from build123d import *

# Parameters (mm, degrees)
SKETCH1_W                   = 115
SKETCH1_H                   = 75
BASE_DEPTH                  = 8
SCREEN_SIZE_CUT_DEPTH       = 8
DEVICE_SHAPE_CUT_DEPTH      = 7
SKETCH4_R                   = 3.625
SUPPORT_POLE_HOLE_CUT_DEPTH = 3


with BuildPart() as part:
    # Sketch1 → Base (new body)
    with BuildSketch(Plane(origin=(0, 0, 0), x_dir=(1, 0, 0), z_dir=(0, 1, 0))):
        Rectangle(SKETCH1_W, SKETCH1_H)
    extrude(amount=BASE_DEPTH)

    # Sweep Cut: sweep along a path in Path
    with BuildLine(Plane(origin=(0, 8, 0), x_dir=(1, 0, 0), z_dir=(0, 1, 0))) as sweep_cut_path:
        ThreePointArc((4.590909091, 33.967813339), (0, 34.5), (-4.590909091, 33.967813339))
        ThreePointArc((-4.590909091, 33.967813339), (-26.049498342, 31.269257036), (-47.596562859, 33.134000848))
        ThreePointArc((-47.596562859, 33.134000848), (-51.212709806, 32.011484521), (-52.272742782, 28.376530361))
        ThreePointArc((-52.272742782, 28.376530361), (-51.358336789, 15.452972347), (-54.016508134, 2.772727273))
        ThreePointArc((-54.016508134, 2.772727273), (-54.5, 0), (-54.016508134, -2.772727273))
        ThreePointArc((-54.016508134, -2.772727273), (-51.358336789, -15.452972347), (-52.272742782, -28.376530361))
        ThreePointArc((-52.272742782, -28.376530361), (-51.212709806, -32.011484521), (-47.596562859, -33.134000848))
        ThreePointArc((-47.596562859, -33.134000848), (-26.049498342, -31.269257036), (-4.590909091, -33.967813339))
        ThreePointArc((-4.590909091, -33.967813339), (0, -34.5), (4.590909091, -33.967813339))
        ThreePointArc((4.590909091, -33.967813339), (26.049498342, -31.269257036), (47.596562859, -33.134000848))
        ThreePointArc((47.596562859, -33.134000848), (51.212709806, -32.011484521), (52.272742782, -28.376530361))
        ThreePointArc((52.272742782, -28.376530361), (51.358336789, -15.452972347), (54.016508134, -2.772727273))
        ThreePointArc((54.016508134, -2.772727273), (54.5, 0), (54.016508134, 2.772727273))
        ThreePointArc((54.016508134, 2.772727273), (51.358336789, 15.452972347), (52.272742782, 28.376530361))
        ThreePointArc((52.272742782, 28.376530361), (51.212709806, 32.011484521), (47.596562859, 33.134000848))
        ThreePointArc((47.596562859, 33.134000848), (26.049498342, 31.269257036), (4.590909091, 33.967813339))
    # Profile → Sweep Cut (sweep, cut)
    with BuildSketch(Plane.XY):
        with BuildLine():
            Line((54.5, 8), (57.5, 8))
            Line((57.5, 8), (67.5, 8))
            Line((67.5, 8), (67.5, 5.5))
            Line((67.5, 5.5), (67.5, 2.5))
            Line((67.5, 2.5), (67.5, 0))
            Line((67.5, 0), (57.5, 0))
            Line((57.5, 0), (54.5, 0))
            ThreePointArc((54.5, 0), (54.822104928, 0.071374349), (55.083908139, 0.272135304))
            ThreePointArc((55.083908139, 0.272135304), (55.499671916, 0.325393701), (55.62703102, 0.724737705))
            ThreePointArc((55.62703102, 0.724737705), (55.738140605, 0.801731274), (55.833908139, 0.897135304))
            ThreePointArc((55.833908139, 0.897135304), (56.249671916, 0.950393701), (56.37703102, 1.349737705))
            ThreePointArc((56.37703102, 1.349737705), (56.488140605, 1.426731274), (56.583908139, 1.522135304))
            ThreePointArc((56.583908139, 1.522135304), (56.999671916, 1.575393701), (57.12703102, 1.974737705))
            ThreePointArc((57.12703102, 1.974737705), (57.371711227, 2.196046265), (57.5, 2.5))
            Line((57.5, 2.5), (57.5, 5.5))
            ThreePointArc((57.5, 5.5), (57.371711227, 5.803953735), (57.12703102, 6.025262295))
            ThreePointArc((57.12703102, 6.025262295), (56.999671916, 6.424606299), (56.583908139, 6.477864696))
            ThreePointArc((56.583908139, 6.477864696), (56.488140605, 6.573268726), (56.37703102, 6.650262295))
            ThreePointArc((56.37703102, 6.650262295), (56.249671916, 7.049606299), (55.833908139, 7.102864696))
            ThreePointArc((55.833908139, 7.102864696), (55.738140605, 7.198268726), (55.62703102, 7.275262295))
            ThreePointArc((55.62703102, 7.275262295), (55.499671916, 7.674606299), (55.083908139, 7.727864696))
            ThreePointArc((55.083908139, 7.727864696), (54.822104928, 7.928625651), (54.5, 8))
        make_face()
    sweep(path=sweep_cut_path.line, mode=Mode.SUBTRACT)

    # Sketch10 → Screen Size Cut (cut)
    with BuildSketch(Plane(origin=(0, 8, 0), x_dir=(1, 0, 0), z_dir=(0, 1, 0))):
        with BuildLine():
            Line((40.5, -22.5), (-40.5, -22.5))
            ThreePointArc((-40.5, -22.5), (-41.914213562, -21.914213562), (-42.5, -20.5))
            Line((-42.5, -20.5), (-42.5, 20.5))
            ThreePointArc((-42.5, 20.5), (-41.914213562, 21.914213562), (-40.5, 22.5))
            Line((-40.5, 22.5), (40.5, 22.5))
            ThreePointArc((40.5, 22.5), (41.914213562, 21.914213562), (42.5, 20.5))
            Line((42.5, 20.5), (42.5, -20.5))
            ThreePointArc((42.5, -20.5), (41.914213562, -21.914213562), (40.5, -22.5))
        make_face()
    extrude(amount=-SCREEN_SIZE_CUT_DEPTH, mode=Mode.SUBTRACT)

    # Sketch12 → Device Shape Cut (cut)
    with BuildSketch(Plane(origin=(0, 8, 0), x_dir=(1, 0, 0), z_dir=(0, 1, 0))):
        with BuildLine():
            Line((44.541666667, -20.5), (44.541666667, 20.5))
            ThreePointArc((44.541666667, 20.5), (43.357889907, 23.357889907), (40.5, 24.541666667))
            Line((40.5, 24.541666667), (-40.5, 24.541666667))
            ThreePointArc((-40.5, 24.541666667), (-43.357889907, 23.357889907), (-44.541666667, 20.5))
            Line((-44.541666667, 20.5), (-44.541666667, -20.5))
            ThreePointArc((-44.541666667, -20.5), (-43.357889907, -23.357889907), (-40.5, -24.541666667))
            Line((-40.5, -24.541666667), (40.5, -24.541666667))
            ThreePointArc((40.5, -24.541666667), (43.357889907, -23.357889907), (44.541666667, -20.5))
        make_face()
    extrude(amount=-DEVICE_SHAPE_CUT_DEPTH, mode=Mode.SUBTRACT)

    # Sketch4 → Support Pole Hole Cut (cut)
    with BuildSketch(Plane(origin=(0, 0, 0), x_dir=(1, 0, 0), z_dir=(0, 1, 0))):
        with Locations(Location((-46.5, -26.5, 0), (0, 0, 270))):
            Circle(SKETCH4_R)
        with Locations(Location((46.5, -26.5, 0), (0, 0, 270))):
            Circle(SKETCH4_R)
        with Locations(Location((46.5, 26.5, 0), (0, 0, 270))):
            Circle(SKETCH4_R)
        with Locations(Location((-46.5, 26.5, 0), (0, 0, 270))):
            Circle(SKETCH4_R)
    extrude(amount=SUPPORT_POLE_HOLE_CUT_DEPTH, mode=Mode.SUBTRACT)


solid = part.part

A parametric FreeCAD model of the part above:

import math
import FreeCAD as App
import Part
import Sketcher
from FreeCAD import Vector

doc = App.newDocument("Part")
body = doc.addObject("PartDesign::Body", "Body")

sketch1 = doc.addObject("Sketcher::SketchObject", "Sketch")
body.addObject(sketch1)
sketch1.AttachmentSupport = (doc.XZ_Plane, [""])
sketch1.MapMode = "FlatFace"
sketch1.addGeometry([
    Part.LineSegment(Vector(-58, -38, 0), Vector(-58, 38, 0)),
    Part.LineSegment(Vector(-58, 38, 0), Vector(58, 38, 0)),
    Part.LineSegment(Vector(58, 38, 0), Vector(58, -38, 0)),
    Part.LineSegment(Vector(58, -38, 0), Vector(-58, -38, 0)),
], False)
sketch1.addConstraint([
    Sketcher.Constraint("Coincident", 0, 2, 1, 1),
    Sketcher.Constraint("Coincident", 1, 2, 2, 1),
    Sketcher.Constraint("Coincident", 2, 2, 3, 1),
    Sketcher.Constraint("Coincident", 3, 2, 0, 1),
    Sketcher.Constraint("Vertical", 0),
    Sketcher.Constraint("Horizontal", 1),
    Sketcher.Constraint("Vertical", 2),
    Sketcher.Constraint("Horizontal", 3),
    Sketcher.Constraint("Symmetric", 0, 2, 2, 2, -1, 1),
    Sketcher.Constraint("DistanceX", 1, 1, 1, 2, 115.0),
    Sketcher.Constraint("DistanceY", 0, 1, 0, 2, 75.0),
])
pad1 = doc.addObject("PartDesign::Pad", "Pad")
body.addObject(pad1)
pad1.Profile = sketch1
pad1.Length = 8
pad1.Reversed = True

sketch2 = doc.addObject("Sketcher::SketchObject", "Sketch001")
body.addObject(sketch2)
sketch2.AttachmentSupport = (doc.XY_Plane, [""])
sketch2.MapMode = "FlatFace"
sketch2.addGeometry([
    Part.LineSegment(Vector(67.5, 8, 0), Vector(54.5, 8, 0)),
    Part.ArcOfCircle(Part.Circle(Vector(54.5, 7.24, 0), Vector(0, 0, 1), 0.76), math.radians(40), math.radians(90)),
    Part.ArcOfCircle(Part.Circle(Vector(55.25, 7.38, 0), Vector(0, 0, 1), 0.39), math.radians(-15), math.radians(115)),
    Part.ArcOfCircle(Part.Circle(Vector(55.25, 6.61, 0), Vector(0, 0, 1), 0.76), math.radians(40), math.radians(60)),
    Part.ArcOfCircle(Part.Circle(Vector(56, 6.75, 0), Vector(0, 0, 1), 0.39), math.radians(-15), math.radians(115)),
    Part.ArcOfCircle(Part.Circle(Vector(56, 5.99, 0), Vector(0, 0, 1), 0.76), math.radians(40), math.radians(60)),
    Part.ArcOfCircle(Part.Circle(Vector(56.75, 6.12, 0), Vector(0, 0, 1), 0.39), math.radians(-15), math.radians(115)),
    Part.ArcOfCircle(Part.Circle(Vector(56.75, 5.36, 0), Vector(0, 0, 1), 0.76), math.radians(10), math.radians(60)),
    Part.LineSegment(Vector(57.5, 5.5, 0), Vector(57.5, 2.5, 0)),
    Part.ArcOfCircle(Part.Circle(Vector(56.75, 2.64, 0), Vector(0, 0, 1), 0.76), math.radians(-60), math.radians(-10)),
    Part.ArcOfCircle(Part.Circle(Vector(56.75, 1.88, 0), Vector(0, 0, 1), 0.39), math.radians(-115), math.radians(15)),
    Part.ArcOfCircle(Part.Circle(Vector(56, 2.01, 0), Vector(0, 0, 1), 0.76), math.radians(-60), math.radians(-40)),
    Part.ArcOfCircle(Part.Circle(Vector(56, 1.25, 0), Vector(0, 0, 1), 0.39), math.radians(-115), math.radians(15)),
    Part.ArcOfCircle(Part.Circle(Vector(55.25, 1.39, 0), Vector(0, 0, 1), 0.76), math.radians(-60), math.radians(-40)),
    Part.ArcOfCircle(Part.Circle(Vector(55.25, 0.62, 0), Vector(0, 0, 1), 0.39), math.radians(-115), math.radians(15)),
    Part.ArcOfCircle(Part.Circle(Vector(54.5, 0.76, 0), Vector(0, 0, 1), 0.76), math.radians(-90), math.radians(-40)),
    Part.LineSegment(Vector(54.5, 0, 0), Vector(67.5, 0, 0)),
    Part.LineSegment(Vector(67.5, 0, 0), Vector(67.5, 8, 0)),
], False)
sketch2.addConstraint([
    Sketcher.Constraint("Tangent", 0, 2, 1, 2),
    Sketcher.Constraint("Coincident", 1, 1, 2, 2),
    Sketcher.Constraint("Coincident", 2, 1, 3, 2),
    Sketcher.Constraint("Coincident", 3, 1, 4, 2),
    Sketcher.Constraint("Coincident", 4, 1, 5, 2),
    Sketcher.Constraint("Coincident", 5, 1, 6, 2),
    Sketcher.Constraint("Coincident", 6, 1, 7, 2),
    Sketcher.Constraint("Coincident", 7, 1, 8, 1),
    Sketcher.Constraint("Coincident", 8, 2, 9, 2),
    Sketcher.Constraint("Coincident", 9, 1, 10, 2),
    Sketcher.Constraint("Coincident", 10, 1, 11, 2),
    Sketcher.Constraint("Coincident", 11, 1, 12, 2),
    Sketcher.Constraint("Coincident", 12, 1, 13, 2),
    Sketcher.Constraint("Coincident", 13, 1, 14, 2),
    Sketcher.Constraint("Coincident", 14, 1, 15, 2),
    Sketcher.Constraint("Tangent", 15, 1, 16, 1),
    Sketcher.Constraint("Coincident", 16, 2, 17, 1),
    Sketcher.Constraint("Coincident", 17, 2, 0, 1),
    Sketcher.Constraint("Horizontal", 0),
    Sketcher.Constraint("Vertical", 8),
    Sketcher.Constraint("Horizontal", 16),
    Sketcher.Constraint("Vertical", 17),
    Sketcher.Constraint("Equal", 1, 3),
    Sketcher.Constraint("Equal", 2, 4),
    Sketcher.Constraint("Equal", 3, 5),
    Sketcher.Constraint("Equal", 4, 6),
    Sketcher.Constraint("Equal", 5, 7),
    Sketcher.Constraint("Equal", 7, 9),
    Sketcher.Constraint("Equal", 6, 10),
    Sketcher.Constraint("Equal", 9, 11),
    Sketcher.Constraint("Equal", 10, 12),
    Sketcher.Constraint("Equal", 11, 13),
    Sketcher.Constraint("Equal", 12, 14),
    Sketcher.Constraint("Equal", 13, 15),
    Sketcher.Constraint("PointOnObject", 15, 1, -1),
    Sketcher.Constraint("Vertical", 2, 3, 3, 3),
    Sketcher.Constraint("Vertical", 4, 3, 5, 3),
    Sketcher.Constraint("Vertical", 6, 3, 7, 3),
    Sketcher.Constraint("Vertical", 7, 3, 9, 3),
    Sketcher.Constraint("Vertical", 9, 3, 10, 3),
    Sketcher.Constraint("Vertical", 5, 3, 11, 3),
    Sketcher.Constraint("Vertical", 11, 3, 12, 3),
    Sketcher.Constraint("Vertical", 3, 3, 13, 3),
    Sketcher.Constraint("Vertical", 13, 3, 14, 3),
    Sketcher.Constraint("Vertical", 1, 3, 15, 3),
    Sketcher.Constraint("Vertical", 6, 1, 9, 1),
    Sketcher.Constraint("Vertical", 5, 1, 10, 1),
    Sketcher.Constraint("Vertical", 4, 1, 11, 1),
    Sketcher.Constraint("Vertical", 3, 1, 12, 1),
    Sketcher.Constraint("Vertical", 2, 1, 13, 1),
    Sketcher.Constraint("Vertical", 1, 1, 14, 1),
    Sketcher.Constraint("DistanceX", 0, 2, 0, 1, 13.0),
    Sketcher.Constraint("DistanceY", 8, 2, 8, 1, 3.0),
    Sketcher.Constraint("DistanceY", 17, 1, 17, 2, 8.0),
    Sketcher.Constraint("Radius", 2, 0.39),
    Sketcher.Constraint("DistanceX", -1, 1, 4, 3, 56.0),
    Sketcher.Constraint("DistanceX", 8, 2, 16, 2, 10.0),
    Sketcher.Constraint("DistanceX", -1, 1, 1, 3, 54.5),
    Sketcher.Constraint("Radius", 1, 0.7625),
    Sketcher.Constraint("DistanceX", 3, 3, 6, 3, 1.5),
    Sketcher.Constraint("DistanceX", -1, 1, 2, 3, 55.25),
    Sketcher.Constraint("DistanceY", -1, 1, 4, 3, 6.75),
    Sketcher.Constraint("DistanceY", 5, 3, 1, 3, 1.25),
    Sketcher.Constraint("DistanceY", 6, 3, 2, 3, 1.25),
    Sketcher.Constraint("DistanceY", 7, 3, 3, 3, 1.25),
    Sketcher.Constraint("DistanceY", 10, 3, 6, 3, 4.25),
])

sketch3 = doc.addObject("Sketcher::SketchObject", "Sketch002")
body.addObject(sketch3)
sketch3.AttachmentSupport = (doc.XZ_Plane, [""])
sketch3.MapMode = "FlatFace"
sketch3.AttachmentOffset = App.Placement(Vector(0, 0, -8), App.Rotation())
sketch3.addGeometry([
    Part.ArcOfCircle(Part.Circle(Vector(0, -14.4, 0), Vector(0, 0, 1), 20.1), math.radians(-103), math.radians(-77)),
    Part.ArcOfCircle(Part.Circle(Vector(-28, -133.7, 0), Vector(0, 0, 1), 102.5), math.radians(77), math.radians(101)),
    Part.ArcOfCircle(Part.Circle(Vector(-48.4, -29.2, 0), Vector(0, 0, 1), 4), math.radians(168), math.radians(281)),
    Part.ArcOfCircle(Part.Circle(Vector(-98.1, -18.6, 0), Vector(0, 0, 1), 46.9), math.radians(-12), math.radians(20)),
    Part.ArcOfCircle(Part.Circle(Vector(-46.3, 0, 0), Vector(0, 0, 1), 8.2), math.radians(160), math.radians(200)),
    Part.ArcOfCircle(Part.Circle(Vector(-98.1, 18.6, 0), Vector(0, 0, 1), 46.9), math.radians(-20), math.radians(12)),
    Part.ArcOfCircle(Part.Circle(Vector(-48.4, 29.2, 0), Vector(0, 0, 1), 4), math.radians(79), math.radians(192)),
    Part.ArcOfCircle(Part.Circle(Vector(-28, 133.7, 0), Vector(0, 0, 1), 102.5), math.radians(-101), math.radians(-77)),
    Part.ArcOfCircle(Part.Circle(Vector(0, 14.4, 0), Vector(0, 0, 1), 20.1), math.radians(77), math.radians(103)),
    Part.ArcOfCircle(Part.Circle(Vector(28, 133.7, 0), Vector(0, 0, 1), 102.5), math.radians(-103), math.radians(-79)),
    Part.ArcOfCircle(Part.Circle(Vector(48.4, 29.2, 0), Vector(0, 0, 1), 4), math.radians(-12), math.radians(101)),
    Part.ArcOfCircle(Part.Circle(Vector(98.1, 18.6, 0), Vector(0, 0, 1), 46.9), math.radians(168), math.radians(200)),
    Part.ArcOfCircle(Part.Circle(Vector(46.3, 0, 0), Vector(0, 0, 1), 8.2), math.radians(-20), math.radians(20)),
    Part.ArcOfCircle(Part.Circle(Vector(98.1, -18.6, 0), Vector(0, 0, 1), 46.9), math.radians(160), math.radians(192)),
    Part.ArcOfCircle(Part.Circle(Vector(48.4, -29.2, 0), Vector(0, 0, 1), 4), math.radians(-101), math.radians(12)),
    Part.ArcOfCircle(Part.Circle(Vector(28, -133.7, 0), Vector(0, 0, 1), 102.5), math.radians(79), math.radians(103)),
], False)
sketch3.addConstraint([
    Sketcher.Constraint("Tangent", 0, 1, 1, 1),
    Sketcher.Constraint("Tangent", 1, 2, 2, 2),
    Sketcher.Constraint("Tangent", 2, 1, 3, 1),
    Sketcher.Constraint("Tangent", 3, 2, 4, 2),
    Sketcher.Constraint("Tangent", 4, 1, 5, 1),
    Sketcher.Constraint("Tangent", 5, 2, 6, 2),
    Sketcher.Constraint("Tangent", 6, 1, 7, 1),
    Sketcher.Constraint("Tangent", 7, 2, 8, 2),
    Sketcher.Constraint("Tangent", 8, 1, 9, 1),
    Sketcher.Constraint("Tangent", 9, 2, 10, 2),
    Sketcher.Constraint("Tangent", 10, 1, 11, 1),
    Sketcher.Constraint("Tangent", 11, 2, 12, 2),
    Sketcher.Constraint("Tangent", 12, 1, 13, 1),
    Sketcher.Constraint("Tangent", 13, 2, 14, 2),
    Sketcher.Constraint("Tangent", 14, 1, 15, 1),
    Sketcher.Constraint("Tangent", 15, 2, 0, 2),
    Sketcher.Constraint("Equal", 3, 5),
    Sketcher.Constraint("Equal", 2, 6),
    Sketcher.Constraint("Equal", 1, 7),
    Sketcher.Constraint("Equal", 0, 8),
    Sketcher.Constraint("Equal", 7, 9),
    Sketcher.Constraint("Equal", 6, 10),
    Sketcher.Constraint("Equal", 5, 11),
    Sketcher.Constraint("Equal", 4, 12),
    Sketcher.Constraint("Equal", 11, 13),
    Sketcher.Constraint("Equal", 10, 14),
    Sketcher.Constraint("Equal", 9, 15),
    Sketcher.Constraint("Symmetric", 0, 3, 8, 3, -1, 1),
    Sketcher.Constraint("Symmetric", 2, 3, 10, 3, -1, 1),
    Sketcher.Constraint("Symmetric", 4, 3, 12, 3, -1, 1),
    Sketcher.Constraint("Symmetric", 6, 3, 14, 3, -1, 1),
    Sketcher.Constraint("Symmetric", 7, 3, 9, 3, -2),
    Sketcher.Constraint("Symmetric", 5, 3, 11, 3, -2),
    Sketcher.Constraint("Radius", 2, 4.0),
    Sketcher.Constraint("Radius", 4, 8.192259),
    Sketcher.Constraint("DistanceY", 1, 2, -1, 1, 33.134001),
    Sketcher.Constraint("Radius", 0, 20.067836),
    Sketcher.Constraint("Radius", 1, 102.484026),
    Sketcher.Constraint("Radius", 3, 46.875557),
    Sketcher.Constraint("DistanceX", 2, 1, 4, 3, 5.965002),
    Sketcher.Constraint("DistanceY", 0, 3, 6, 3, 43.639699),
    Sketcher.Constraint("DistanceX", 4, 3, 11, 3, 144.433298),
])
doc.recompute()

subtractivepipe = doc.addObject("PartDesign::SubtractivePipe", "SubtractivePipe")
body.addObject(subtractivepipe)
subtractivepipe.Profile = sketch2
subtractivepipe.Spine = (sketch3, ["Edge1", "Edge2", "Edge3", "Edge4", "Edge5", "Edge6", "Edge7", "Edge8", "Edge9", "Edge10", "Edge11", "Edge12", "Edge13", "Edge14", "Edge15", "Edge16"])

sketch4 = doc.addObject("Sketcher::SketchObject", "Sketch003")
body.addObject(sketch4)
sketch4.AttachmentSupport = (doc.XZ_Plane, [""])
sketch4.MapMode = "FlatFace"
sketch4.AttachmentOffset = App.Placement(Vector(0, 0, -8), App.Rotation())
sketch4.addGeometry([
    Part.LineSegment(Vector(-40.5, 22.5, 0), Vector(40.5, 22.5, 0)),
    Part.ArcOfCircle(Part.Circle(Vector(40.5, 20.5, 0), Vector(0, 0, 1), 2), math.radians(0), math.radians(90)),
    Part.LineSegment(Vector(42.5, 20.5, 0), Vector(42.5, -20.5, 0)),
    Part.ArcOfCircle(Part.Circle(Vector(40.5, -20.5, 0), Vector(0, 0, 1), 2), math.radians(-90), math.radians(0)),
    Part.LineSegment(Vector(40.5, -22.5, 0), Vector(-40.5, -22.5, 0)),
    Part.ArcOfCircle(Part.Circle(Vector(-40.5, -20.5, 0), Vector(0, 0, 1), 2), math.radians(-180), math.radians(-90)),
    Part.LineSegment(Vector(-42.5, -20.5, 0), Vector(-42.5, 20.5, 0)),
    Part.ArcOfCircle(Part.Circle(Vector(-40.5, 20.5, 0), Vector(0, 0, 1), 2), math.radians(90), math.radians(180)),
], False)
sketch4.addConstraint([
    Sketcher.Constraint("Tangent", 0, 2, 1, 2),
    Sketcher.Constraint("Tangent", 1, 1, 2, 1),
    Sketcher.Constraint("Tangent", 2, 2, 3, 2),
    Sketcher.Constraint("Tangent", 3, 1, 4, 1),
    Sketcher.Constraint("Tangent", 4, 2, 5, 2),
    Sketcher.Constraint("Tangent", 5, 1, 6, 1),
    Sketcher.Constraint("Tangent", 6, 2, 7, 2),
    Sketcher.Constraint("Tangent", 7, 1, 0, 1),
    Sketcher.Constraint("Horizontal", 0),
    Sketcher.Constraint("Vertical", 2),
    Sketcher.Constraint("Horizontal", 4),
    Sketcher.Constraint("Vertical", 6),
    Sketcher.Constraint("Equal", 1, 3),
    Sketcher.Constraint("Equal", 3, 5),
    Sketcher.Constraint("Equal", 5, 7),
    Sketcher.Constraint("Symmetric", 1, 3, 5, 3, -1, 1),
    Sketcher.Constraint("Radius", 1, 2.0),
    Sketcher.Constraint("DistanceX", 0, 1, 0, 2, 81.0),
    Sketcher.Constraint("DistanceY", 2, 2, 2, 1, 41.0),
])
pocket1 = doc.addObject("PartDesign::Pocket", "Pocket")
body.addObject(pocket1)
pocket1.Profile = sketch4
pocket1.Length = 8
pocket1.Reversed = True

sketch5 = doc.addObject("Sketcher::SketchObject", "Sketch004")
body.addObject(sketch5)
sketch5.AttachmentSupport = (doc.XZ_Plane, [""])
sketch5.MapMode = "FlatFace"
sketch5.AttachmentOffset = App.Placement(Vector(0, 0, -8), App.Rotation())
sketch5.addGeometry([
    Part.LineSegment(Vector(44.5, 20.5, 0), Vector(44.5, -20.5, 0)),
    Part.ArcOfCircle(Part.Circle(Vector(40.5, -20.5, 0), Vector(0, 0, 1), 4), math.radians(-90), math.radians(0)),
    Part.LineSegment(Vector(40.5, -24.5, 0), Vector(-40.5, -24.5, 0)),
    Part.ArcOfCircle(Part.Circle(Vector(-40.5, -20.5, 0), Vector(0, 0, 1), 4), math.radians(-180), math.radians(-90)),
    Part.LineSegment(Vector(-44.5, -20.5, 0), Vector(-44.5, 20.5, 0)),
    Part.ArcOfCircle(Part.Circle(Vector(-40.5, 20.5, 0), Vector(0, 0, 1), 4), math.radians(90), math.radians(180)),
    Part.LineSegment(Vector(-40.5, 24.5, 0), Vector(40.5, 24.5, 0)),
    Part.ArcOfCircle(Part.Circle(Vector(40.5, 20.5, 0), Vector(0, 0, 1), 4), math.radians(0), math.radians(90)),
], False)
sketch5.addConstraint([
    Sketcher.Constraint("Tangent", 0, 2, 1, 2),
    Sketcher.Constraint("Tangent", 1, 1, 2, 1),
    Sketcher.Constraint("Tangent", 2, 2, 3, 2),
    Sketcher.Constraint("Tangent", 3, 1, 4, 1),
    Sketcher.Constraint("Tangent", 4, 2, 5, 2),
    Sketcher.Constraint("Tangent", 5, 1, 6, 1),
    Sketcher.Constraint("Tangent", 6, 2, 7, 2),
    Sketcher.Constraint("Tangent", 7, 1, 0, 1),
    Sketcher.Constraint("Vertical", 0),
    Sketcher.Constraint("Horizontal", 2),
    Sketcher.Constraint("Vertical", 4),
    Sketcher.Constraint("Horizontal", 6),
    Sketcher.Constraint("Equal", 1, 3),
    Sketcher.Constraint("Equal", 3, 5),
    Sketcher.Constraint("Equal", 5, 7),
    Sketcher.Constraint("Symmetric", 1, 3, 5, 3, -1, 1),
    Sketcher.Constraint("DistanceX", 2, 2, 2, 1, 81.0),
    Sketcher.Constraint("DistanceY", 0, 2, 0, 1, 41.0),
    Sketcher.Constraint("Radius", 1, 4.041667),
])
pocket2 = doc.addObject("PartDesign::Pocket", "Pocket001")
body.addObject(pocket2)
pocket2.Profile = sketch5
pocket2.Length = 7
pocket2.Reversed = True

sketch6 = doc.addObject("Sketcher::SketchObject", "Sketch005")
body.addObject(sketch6)
sketch6.AttachmentSupport = (doc.XZ_Plane, [""])
sketch6.MapMode = "FlatFace"
sketch6.addGeometry([
    Part.Circle(Vector(-46.5, 26.5, 0), Vector(0, 0, 1), 3.6),
    Part.Circle(Vector(46.5, 26.5, 0), Vector(0, 0, 1), 3.6),
    Part.Circle(Vector(46.5, -26.5, 0), Vector(0, 0, 1), 3.6),
    Part.Circle(Vector(-46.5, -26.5, 0), Vector(0, 0, 1), 3.6),
], False)
sketch6.addConstraint([
    Sketcher.Constraint("Equal", 0, 1),
    Sketcher.Constraint("Equal", 1, 2),
    Sketcher.Constraint("Equal", 2, 3),
    Sketcher.Constraint("Symmetric", 0, 3, 2, 3, -1, 1),
    Sketcher.Constraint("Symmetric", 1, 3, 3, 3, -1, 1),
    Sketcher.Constraint("Symmetric", 0, 3, 1, 3, -2),
    Sketcher.Constraint("Diameter", 0, 7.25),
    Sketcher.Constraint("DistanceX", 0, 3, 1, 3, 93.0),
    Sketcher.Constraint("DistanceY", 2, 3, 1, 3, 53.0),
])
pocket3 = doc.addObject("PartDesign::Pocket", "Pocket002")
body.addObject(pocket3)
pocket3.Profile = sketch6
pocket3.Length = 3

doc.recompute()
